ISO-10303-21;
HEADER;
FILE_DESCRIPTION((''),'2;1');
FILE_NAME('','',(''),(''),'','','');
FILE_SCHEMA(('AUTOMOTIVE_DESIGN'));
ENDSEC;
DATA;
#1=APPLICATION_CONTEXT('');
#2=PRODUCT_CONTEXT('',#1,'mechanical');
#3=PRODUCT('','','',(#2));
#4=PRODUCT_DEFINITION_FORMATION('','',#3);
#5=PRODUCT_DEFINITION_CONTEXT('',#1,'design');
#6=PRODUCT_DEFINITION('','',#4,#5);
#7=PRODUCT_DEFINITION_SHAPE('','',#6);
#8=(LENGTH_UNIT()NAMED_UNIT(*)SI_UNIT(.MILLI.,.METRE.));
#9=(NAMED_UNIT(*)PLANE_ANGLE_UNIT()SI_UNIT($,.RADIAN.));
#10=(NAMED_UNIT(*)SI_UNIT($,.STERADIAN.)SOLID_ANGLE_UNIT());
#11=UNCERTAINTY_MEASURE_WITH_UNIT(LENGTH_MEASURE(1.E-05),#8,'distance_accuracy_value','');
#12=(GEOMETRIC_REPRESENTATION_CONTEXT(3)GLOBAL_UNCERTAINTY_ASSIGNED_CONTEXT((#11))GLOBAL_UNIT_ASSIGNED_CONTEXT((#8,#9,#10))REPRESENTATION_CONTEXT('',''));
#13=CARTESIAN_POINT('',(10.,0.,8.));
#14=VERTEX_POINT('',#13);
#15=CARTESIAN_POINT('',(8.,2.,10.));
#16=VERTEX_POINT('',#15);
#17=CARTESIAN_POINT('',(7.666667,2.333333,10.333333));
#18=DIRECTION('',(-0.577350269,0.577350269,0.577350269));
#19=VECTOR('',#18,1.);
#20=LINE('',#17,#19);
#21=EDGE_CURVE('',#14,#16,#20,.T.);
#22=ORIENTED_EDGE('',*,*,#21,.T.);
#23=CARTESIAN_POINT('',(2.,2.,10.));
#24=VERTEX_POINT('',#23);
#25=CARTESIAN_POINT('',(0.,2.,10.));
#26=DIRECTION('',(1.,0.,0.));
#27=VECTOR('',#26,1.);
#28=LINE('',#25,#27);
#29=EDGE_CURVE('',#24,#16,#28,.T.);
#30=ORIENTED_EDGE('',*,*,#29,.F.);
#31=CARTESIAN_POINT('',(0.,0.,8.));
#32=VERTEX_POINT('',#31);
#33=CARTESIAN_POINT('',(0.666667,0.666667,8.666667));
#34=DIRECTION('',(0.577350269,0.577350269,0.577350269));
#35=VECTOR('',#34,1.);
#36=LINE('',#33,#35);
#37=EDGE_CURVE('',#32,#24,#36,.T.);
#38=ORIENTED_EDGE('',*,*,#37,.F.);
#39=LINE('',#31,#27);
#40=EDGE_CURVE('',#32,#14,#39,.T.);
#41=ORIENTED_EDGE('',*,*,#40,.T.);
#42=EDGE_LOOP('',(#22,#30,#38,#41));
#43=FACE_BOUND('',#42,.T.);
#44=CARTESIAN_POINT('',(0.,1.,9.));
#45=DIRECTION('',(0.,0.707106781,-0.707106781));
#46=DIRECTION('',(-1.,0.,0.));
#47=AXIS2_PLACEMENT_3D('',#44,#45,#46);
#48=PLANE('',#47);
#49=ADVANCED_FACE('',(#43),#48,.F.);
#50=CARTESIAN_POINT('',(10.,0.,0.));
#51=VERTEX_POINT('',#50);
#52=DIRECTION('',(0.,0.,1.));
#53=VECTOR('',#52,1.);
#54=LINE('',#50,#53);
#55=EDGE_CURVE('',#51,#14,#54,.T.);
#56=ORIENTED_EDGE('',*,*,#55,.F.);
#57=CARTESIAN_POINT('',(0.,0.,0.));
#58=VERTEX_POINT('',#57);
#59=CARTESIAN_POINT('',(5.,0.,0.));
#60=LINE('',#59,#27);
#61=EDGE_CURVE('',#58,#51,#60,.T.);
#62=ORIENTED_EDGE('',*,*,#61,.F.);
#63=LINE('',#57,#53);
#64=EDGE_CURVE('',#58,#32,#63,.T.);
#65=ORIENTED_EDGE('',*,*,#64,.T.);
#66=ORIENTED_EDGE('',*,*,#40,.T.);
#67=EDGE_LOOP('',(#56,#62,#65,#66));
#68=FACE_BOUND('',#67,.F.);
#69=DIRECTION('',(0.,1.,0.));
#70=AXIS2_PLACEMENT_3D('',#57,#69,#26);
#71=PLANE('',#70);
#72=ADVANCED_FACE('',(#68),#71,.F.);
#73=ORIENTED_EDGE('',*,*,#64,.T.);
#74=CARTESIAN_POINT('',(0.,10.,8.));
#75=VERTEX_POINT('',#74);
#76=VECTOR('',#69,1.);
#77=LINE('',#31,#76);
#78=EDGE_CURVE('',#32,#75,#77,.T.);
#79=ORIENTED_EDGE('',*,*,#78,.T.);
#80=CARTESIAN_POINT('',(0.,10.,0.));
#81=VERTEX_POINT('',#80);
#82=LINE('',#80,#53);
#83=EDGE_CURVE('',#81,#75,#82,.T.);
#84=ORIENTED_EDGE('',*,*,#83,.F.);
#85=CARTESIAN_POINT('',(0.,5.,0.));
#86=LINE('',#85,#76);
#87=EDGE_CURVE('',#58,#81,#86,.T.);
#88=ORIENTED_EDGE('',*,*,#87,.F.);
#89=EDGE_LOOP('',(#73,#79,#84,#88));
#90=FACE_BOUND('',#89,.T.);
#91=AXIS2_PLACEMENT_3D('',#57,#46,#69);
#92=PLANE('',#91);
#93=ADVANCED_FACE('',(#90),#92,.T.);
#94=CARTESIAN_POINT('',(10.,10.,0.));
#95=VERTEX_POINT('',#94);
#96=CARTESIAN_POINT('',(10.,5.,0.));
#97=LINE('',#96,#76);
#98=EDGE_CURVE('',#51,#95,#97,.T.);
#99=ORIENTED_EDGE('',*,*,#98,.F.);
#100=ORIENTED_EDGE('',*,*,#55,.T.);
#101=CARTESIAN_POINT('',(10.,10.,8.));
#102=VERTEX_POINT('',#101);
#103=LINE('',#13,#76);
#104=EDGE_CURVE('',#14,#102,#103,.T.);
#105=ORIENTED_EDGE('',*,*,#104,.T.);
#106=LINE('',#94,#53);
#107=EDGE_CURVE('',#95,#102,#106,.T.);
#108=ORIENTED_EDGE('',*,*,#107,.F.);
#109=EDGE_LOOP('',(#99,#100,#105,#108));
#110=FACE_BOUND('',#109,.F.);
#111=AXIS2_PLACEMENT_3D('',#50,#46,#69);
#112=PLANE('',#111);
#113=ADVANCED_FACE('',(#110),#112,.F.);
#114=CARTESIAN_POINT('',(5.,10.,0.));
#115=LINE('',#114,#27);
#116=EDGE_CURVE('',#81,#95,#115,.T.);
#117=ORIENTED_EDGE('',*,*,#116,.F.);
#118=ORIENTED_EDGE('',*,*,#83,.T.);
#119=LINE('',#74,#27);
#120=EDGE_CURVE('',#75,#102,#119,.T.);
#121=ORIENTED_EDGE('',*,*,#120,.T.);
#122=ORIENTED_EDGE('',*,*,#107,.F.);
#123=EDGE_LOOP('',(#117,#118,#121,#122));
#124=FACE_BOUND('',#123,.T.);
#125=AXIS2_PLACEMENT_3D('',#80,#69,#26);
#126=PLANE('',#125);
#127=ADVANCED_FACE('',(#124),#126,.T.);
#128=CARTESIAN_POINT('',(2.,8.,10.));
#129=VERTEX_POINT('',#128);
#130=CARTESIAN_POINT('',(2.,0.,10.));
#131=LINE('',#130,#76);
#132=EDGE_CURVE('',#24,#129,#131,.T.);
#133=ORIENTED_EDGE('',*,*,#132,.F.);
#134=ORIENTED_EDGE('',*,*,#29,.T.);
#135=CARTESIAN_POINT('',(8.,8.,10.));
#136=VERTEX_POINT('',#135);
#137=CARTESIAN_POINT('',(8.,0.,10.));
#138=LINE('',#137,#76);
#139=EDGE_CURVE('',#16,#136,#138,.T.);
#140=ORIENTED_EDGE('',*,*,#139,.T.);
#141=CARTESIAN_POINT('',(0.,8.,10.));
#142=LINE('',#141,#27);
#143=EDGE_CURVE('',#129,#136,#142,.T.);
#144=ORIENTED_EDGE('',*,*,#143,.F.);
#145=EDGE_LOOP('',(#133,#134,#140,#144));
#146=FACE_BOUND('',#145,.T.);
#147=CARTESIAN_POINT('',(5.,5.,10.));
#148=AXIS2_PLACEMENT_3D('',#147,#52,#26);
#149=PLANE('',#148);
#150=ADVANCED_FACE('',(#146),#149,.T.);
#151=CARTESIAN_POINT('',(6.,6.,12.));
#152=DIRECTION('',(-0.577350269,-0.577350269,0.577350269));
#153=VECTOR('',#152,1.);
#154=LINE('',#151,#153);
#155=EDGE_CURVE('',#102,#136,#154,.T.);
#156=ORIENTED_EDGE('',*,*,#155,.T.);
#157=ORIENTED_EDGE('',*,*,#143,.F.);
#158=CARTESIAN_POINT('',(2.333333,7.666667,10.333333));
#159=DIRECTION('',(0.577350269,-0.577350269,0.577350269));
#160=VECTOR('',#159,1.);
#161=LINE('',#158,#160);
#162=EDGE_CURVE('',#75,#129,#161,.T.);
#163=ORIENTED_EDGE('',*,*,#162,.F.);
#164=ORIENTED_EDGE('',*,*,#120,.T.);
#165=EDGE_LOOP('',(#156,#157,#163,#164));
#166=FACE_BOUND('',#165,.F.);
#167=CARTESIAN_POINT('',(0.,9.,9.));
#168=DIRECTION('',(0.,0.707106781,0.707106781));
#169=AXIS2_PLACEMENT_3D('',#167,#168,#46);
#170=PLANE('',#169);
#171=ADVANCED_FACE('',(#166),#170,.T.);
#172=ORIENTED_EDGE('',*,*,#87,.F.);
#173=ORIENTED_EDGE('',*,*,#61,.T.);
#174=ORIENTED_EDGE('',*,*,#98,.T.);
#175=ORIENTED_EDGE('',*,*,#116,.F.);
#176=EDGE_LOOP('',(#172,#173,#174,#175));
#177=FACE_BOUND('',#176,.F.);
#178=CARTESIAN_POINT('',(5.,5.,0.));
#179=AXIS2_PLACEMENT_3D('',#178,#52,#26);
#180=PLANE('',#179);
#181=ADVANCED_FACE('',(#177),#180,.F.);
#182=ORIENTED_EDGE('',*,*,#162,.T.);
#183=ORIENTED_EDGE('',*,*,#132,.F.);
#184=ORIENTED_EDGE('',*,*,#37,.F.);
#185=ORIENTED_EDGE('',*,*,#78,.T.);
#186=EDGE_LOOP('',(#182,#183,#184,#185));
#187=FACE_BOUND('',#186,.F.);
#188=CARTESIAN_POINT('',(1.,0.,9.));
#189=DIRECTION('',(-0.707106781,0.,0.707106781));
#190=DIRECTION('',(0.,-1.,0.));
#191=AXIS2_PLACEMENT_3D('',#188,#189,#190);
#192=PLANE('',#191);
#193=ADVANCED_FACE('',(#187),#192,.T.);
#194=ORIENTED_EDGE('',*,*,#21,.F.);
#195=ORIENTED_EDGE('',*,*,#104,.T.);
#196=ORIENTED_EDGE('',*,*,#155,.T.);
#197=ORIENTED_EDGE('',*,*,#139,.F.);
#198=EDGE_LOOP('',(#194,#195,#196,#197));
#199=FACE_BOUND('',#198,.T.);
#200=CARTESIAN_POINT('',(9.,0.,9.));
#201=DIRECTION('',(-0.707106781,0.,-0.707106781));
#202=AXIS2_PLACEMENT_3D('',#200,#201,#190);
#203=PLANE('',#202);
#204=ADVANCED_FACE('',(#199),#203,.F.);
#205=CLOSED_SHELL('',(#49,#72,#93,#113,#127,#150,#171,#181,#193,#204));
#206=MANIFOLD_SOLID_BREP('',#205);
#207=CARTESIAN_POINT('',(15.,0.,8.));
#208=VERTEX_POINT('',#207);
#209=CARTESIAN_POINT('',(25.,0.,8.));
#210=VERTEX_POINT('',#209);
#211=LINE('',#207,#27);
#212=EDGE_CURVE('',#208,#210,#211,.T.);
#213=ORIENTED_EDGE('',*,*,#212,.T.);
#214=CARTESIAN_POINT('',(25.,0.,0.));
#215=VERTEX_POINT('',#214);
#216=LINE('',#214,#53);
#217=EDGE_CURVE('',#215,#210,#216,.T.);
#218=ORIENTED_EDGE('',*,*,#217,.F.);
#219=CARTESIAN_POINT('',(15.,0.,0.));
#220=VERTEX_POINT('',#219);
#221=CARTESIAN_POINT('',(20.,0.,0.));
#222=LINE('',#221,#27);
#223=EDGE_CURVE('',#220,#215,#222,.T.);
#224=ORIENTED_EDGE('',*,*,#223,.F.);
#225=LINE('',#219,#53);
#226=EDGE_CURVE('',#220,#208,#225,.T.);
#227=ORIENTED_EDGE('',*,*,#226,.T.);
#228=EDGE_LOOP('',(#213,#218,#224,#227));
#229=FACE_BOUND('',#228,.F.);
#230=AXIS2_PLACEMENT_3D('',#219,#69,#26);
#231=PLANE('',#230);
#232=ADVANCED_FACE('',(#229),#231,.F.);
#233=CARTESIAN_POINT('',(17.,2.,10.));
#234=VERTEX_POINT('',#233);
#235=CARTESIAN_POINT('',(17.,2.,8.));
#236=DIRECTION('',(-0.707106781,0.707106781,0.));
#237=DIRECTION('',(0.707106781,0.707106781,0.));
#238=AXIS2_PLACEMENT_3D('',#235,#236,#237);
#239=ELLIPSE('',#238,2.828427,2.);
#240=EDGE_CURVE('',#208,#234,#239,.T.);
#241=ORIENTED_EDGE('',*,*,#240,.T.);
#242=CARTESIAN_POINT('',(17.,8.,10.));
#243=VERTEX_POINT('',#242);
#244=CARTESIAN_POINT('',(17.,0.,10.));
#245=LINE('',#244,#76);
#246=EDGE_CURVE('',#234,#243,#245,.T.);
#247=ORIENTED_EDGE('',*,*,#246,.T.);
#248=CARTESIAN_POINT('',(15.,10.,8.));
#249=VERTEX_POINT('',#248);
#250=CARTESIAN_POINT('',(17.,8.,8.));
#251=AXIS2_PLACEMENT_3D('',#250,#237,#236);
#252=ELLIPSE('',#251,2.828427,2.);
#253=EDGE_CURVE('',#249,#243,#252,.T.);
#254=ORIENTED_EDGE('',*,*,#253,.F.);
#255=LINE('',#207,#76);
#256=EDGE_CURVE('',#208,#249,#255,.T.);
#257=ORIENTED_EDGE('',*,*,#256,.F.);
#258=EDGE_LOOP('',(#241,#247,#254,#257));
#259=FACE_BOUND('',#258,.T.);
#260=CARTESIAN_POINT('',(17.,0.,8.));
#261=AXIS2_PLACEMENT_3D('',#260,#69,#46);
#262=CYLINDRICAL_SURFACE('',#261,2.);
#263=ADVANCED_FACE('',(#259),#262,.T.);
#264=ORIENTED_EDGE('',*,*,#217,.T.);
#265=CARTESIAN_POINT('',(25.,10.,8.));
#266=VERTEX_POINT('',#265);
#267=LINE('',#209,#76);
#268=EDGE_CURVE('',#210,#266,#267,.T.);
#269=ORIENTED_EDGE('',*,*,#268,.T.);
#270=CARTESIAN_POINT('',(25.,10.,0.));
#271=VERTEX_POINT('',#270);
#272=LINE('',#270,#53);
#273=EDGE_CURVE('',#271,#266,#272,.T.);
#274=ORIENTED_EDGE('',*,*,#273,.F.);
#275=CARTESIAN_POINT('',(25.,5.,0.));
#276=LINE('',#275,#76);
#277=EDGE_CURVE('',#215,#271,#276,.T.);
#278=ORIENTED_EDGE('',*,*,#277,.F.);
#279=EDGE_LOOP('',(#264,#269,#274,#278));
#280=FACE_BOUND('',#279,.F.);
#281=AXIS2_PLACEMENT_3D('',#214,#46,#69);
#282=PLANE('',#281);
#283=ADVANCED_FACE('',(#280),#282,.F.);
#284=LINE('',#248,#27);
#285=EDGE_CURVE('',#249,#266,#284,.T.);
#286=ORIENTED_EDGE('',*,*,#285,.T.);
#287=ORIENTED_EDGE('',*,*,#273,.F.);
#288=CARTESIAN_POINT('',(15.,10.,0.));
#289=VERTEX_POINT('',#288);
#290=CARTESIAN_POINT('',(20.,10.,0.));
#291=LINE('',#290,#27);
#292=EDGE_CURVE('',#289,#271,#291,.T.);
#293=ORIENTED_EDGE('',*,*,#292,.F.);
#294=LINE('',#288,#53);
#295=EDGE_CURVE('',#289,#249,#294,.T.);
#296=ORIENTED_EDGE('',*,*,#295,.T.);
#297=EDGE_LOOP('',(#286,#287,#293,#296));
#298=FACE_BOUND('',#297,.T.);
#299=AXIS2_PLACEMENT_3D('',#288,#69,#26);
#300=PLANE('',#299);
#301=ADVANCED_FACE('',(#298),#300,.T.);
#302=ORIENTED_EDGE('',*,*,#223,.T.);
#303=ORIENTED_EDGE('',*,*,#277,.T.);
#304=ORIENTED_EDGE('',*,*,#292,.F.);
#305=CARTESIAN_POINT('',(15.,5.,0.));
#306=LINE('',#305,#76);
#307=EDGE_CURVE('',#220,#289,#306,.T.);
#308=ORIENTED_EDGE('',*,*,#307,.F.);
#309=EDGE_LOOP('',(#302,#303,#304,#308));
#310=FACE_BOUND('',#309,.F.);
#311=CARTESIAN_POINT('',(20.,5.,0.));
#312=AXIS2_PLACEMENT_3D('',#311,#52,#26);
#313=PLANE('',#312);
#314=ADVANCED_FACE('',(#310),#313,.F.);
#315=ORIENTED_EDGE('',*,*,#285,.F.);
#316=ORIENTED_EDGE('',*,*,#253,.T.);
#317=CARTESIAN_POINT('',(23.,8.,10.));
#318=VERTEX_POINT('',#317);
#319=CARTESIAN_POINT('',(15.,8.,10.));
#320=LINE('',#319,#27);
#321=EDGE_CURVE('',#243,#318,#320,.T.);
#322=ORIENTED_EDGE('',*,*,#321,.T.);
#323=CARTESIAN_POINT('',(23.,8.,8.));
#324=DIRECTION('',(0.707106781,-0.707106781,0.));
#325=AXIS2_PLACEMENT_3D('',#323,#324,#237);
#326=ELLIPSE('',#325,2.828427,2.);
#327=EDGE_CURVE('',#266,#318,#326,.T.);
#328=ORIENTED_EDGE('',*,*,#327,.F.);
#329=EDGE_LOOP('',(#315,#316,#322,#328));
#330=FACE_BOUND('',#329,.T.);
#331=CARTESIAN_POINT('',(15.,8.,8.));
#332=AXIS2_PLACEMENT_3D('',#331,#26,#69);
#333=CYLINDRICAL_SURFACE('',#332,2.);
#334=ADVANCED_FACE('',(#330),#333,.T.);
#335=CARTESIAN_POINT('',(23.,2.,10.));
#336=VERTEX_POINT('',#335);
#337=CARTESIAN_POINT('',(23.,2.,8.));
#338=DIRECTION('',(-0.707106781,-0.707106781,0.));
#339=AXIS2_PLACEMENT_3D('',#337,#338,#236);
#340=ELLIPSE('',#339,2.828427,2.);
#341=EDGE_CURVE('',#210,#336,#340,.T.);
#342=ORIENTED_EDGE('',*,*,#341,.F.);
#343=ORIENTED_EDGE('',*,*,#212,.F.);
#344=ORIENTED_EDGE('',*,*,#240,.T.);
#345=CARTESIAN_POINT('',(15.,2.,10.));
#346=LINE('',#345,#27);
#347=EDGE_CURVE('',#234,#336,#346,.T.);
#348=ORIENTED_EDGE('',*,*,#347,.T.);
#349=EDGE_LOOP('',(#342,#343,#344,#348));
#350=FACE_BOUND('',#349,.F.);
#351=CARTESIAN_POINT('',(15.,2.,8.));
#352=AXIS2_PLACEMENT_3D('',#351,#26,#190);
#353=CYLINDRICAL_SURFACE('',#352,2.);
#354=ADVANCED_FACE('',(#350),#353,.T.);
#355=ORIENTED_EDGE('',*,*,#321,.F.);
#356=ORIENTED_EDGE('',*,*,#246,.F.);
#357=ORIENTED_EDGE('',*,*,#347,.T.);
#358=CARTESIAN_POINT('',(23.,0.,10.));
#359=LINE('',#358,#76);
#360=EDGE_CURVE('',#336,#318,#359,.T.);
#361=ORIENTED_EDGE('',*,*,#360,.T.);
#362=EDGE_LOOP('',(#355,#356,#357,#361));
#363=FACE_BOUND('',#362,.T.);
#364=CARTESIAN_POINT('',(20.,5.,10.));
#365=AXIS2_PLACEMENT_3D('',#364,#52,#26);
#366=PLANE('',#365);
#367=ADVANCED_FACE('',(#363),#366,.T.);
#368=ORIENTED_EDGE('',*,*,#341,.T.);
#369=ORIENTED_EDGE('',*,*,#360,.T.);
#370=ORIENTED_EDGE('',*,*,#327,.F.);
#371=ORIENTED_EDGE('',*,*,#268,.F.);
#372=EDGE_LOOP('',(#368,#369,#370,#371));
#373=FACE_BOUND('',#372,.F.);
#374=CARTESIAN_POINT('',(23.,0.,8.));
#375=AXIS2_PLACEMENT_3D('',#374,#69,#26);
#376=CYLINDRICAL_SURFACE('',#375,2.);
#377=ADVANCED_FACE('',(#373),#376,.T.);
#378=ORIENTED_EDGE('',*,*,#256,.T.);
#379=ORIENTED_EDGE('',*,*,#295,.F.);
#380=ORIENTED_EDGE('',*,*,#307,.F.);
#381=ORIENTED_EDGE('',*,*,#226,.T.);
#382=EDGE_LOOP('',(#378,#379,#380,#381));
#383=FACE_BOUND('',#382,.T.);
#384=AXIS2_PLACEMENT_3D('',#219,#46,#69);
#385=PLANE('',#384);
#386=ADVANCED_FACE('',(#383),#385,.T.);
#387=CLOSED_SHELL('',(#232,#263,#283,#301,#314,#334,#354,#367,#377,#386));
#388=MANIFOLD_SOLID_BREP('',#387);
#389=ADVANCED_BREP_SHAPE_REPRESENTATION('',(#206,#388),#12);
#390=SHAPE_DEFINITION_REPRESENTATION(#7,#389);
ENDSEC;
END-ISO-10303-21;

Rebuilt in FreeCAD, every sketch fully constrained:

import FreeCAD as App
import Part
import Sketcher
from FreeCAD import Vector
Q = App.Units.Quantity


def edges_at(feature, points):
    """Names of the edges that pass closest to the given points."""
    edges = feature.Shape.Edges
    near = lambda p: min(range(len(edges)), key=lambda i: edges[i].distToShape(Part.Vertex(*p))[0])
    return sorted({f"Edge{near(p) + 1}" for p in points})

doc = App.newDocument("Part")
body = doc.addObject("PartDesign::Body", "Body")

sketch1 = doc.addObject("Sketcher::SketchObject", "Sketch")
body.addObject(sketch1)
sketch1.AttachmentSupport = (doc.XY_Plane, [""])
sketch1.MapMode = "FlatFace"
sketch1.addGeometry([
    Part.LineSegment(Vector(0, 10, 0), Vector(0, 0, 0)),
    Part.LineSegment(Vector(0, 0, 0), Vector(10, 0, 0)),
    Part.LineSegment(Vector(10, 0, 0), Vector(10, 10, 0)),
    Part.LineSegment(Vector(10, 10, 0), Vector(0, 10, 0)),
], False)
sketch1.addConstraint([
    Sketcher.Constraint("Coincident", 0, 2, 1, 1),
    Sketcher.Constraint("Coincident", 1, 2, 2, 1),
    Sketcher.Constraint("Coincident", 2, 2, 3, 1),
    Sketcher.Constraint("Coincident", 3, 2, 0, 1),
    Sketcher.Constraint("Vertical", 0),
    Sketcher.Constraint("Horizontal", 1),
    Sketcher.Constraint("Vertical", 2),
    Sketcher.Constraint("Horizontal", 3),
    Sketcher.Constraint("Coincident", 0, 2, -1, 1),
    Sketcher.Constraint("Equal", 3, 0),
    Sketcher.Constraint("DistanceX", 1, 1, 1, 2, Q("10 mm")),
])
pad1 = doc.addObject("PartDesign::Pad", "Pad")
body.addObject(pad1)
pad1.Profile = sketch1
pad1.Length = 10
doc.recompute()

chamfer = doc.addObject("PartDesign::Chamfer", "Chamfer")
body.addObject(chamfer)
chamfer.Base = (pad1, edges_at(pad1, [
    (0, 5, 10),
    (10, 5, 10),
    (5, 0, 10),
    (5, 10, 10),
]))
chamfer.Size = 2
body2 = doc.addObject("PartDesign::Body", "Body001")

sketch2 = doc.addObject("Sketcher::SketchObject", "Sketch001")
body2.addObject(sketch2)
sketch2.AttachmentSupport = (doc.getObject("XY_Plane001"), [""])
sketch2.MapMode = "FlatFace"
sketch2.addGeometry([
    Part.LineSegment(Vector(15, 10, 0), Vector(15, 0, 0)),
    Part.LineSegment(Vector(15, 0, 0), Vector(25, 0, 0)),
    Part.LineSegment(Vector(25, 0, 0), Vector(25, 10, 0)),
    Part.LineSegment(Vector(25, 10, 0), Vector(15, 10, 0)),
], False)
sketch2.addConstraint([
    Sketcher.Constraint("Coincident", 0, 2, 1, 1),
    Sketcher.Constraint("Coincident", 1, 2, 2, 1),
    Sketcher.Constraint("Coincident", 2, 2, 3, 1),
    Sketcher.Constraint("Coincident", 3, 2, 0, 1),
    Sketcher.Constraint("Vertical", 0),
    Sketcher.Constraint("Horizontal", 1),
    Sketcher.Constraint("Vertical", 2),
    Sketcher.Constraint("Horizontal", 3),
    Sketcher.Constraint("PointOnObject", 0, 2, -1),
    Sketcher.Constraint("Equal", 3, 0),
    Sketcher.Constraint("DistanceX", 1, 1, 1, 2, Q("10 mm")),
    Sketcher.Constraint("DistanceX", -1, 1, 0, 2, Q("15 mm")),
])
pad2 = doc.addObject("PartDesign::Pad", "Pad001")
body2.addObject(pad2)
pad2.Profile = sketch2
pad2.Length = 10
doc.recompute()

fillet = doc.addObject("PartDesign::Fillet", "Fillet")
body2.addObject(fillet)
fillet.Base = (pad2, edges_at(pad2, [
    (15, 5, 10),
    (25, 5, 10),
    (20, 0, 10),
    (20, 10, 10),
]))
fillet.Radius = 2

doc.recompute()
